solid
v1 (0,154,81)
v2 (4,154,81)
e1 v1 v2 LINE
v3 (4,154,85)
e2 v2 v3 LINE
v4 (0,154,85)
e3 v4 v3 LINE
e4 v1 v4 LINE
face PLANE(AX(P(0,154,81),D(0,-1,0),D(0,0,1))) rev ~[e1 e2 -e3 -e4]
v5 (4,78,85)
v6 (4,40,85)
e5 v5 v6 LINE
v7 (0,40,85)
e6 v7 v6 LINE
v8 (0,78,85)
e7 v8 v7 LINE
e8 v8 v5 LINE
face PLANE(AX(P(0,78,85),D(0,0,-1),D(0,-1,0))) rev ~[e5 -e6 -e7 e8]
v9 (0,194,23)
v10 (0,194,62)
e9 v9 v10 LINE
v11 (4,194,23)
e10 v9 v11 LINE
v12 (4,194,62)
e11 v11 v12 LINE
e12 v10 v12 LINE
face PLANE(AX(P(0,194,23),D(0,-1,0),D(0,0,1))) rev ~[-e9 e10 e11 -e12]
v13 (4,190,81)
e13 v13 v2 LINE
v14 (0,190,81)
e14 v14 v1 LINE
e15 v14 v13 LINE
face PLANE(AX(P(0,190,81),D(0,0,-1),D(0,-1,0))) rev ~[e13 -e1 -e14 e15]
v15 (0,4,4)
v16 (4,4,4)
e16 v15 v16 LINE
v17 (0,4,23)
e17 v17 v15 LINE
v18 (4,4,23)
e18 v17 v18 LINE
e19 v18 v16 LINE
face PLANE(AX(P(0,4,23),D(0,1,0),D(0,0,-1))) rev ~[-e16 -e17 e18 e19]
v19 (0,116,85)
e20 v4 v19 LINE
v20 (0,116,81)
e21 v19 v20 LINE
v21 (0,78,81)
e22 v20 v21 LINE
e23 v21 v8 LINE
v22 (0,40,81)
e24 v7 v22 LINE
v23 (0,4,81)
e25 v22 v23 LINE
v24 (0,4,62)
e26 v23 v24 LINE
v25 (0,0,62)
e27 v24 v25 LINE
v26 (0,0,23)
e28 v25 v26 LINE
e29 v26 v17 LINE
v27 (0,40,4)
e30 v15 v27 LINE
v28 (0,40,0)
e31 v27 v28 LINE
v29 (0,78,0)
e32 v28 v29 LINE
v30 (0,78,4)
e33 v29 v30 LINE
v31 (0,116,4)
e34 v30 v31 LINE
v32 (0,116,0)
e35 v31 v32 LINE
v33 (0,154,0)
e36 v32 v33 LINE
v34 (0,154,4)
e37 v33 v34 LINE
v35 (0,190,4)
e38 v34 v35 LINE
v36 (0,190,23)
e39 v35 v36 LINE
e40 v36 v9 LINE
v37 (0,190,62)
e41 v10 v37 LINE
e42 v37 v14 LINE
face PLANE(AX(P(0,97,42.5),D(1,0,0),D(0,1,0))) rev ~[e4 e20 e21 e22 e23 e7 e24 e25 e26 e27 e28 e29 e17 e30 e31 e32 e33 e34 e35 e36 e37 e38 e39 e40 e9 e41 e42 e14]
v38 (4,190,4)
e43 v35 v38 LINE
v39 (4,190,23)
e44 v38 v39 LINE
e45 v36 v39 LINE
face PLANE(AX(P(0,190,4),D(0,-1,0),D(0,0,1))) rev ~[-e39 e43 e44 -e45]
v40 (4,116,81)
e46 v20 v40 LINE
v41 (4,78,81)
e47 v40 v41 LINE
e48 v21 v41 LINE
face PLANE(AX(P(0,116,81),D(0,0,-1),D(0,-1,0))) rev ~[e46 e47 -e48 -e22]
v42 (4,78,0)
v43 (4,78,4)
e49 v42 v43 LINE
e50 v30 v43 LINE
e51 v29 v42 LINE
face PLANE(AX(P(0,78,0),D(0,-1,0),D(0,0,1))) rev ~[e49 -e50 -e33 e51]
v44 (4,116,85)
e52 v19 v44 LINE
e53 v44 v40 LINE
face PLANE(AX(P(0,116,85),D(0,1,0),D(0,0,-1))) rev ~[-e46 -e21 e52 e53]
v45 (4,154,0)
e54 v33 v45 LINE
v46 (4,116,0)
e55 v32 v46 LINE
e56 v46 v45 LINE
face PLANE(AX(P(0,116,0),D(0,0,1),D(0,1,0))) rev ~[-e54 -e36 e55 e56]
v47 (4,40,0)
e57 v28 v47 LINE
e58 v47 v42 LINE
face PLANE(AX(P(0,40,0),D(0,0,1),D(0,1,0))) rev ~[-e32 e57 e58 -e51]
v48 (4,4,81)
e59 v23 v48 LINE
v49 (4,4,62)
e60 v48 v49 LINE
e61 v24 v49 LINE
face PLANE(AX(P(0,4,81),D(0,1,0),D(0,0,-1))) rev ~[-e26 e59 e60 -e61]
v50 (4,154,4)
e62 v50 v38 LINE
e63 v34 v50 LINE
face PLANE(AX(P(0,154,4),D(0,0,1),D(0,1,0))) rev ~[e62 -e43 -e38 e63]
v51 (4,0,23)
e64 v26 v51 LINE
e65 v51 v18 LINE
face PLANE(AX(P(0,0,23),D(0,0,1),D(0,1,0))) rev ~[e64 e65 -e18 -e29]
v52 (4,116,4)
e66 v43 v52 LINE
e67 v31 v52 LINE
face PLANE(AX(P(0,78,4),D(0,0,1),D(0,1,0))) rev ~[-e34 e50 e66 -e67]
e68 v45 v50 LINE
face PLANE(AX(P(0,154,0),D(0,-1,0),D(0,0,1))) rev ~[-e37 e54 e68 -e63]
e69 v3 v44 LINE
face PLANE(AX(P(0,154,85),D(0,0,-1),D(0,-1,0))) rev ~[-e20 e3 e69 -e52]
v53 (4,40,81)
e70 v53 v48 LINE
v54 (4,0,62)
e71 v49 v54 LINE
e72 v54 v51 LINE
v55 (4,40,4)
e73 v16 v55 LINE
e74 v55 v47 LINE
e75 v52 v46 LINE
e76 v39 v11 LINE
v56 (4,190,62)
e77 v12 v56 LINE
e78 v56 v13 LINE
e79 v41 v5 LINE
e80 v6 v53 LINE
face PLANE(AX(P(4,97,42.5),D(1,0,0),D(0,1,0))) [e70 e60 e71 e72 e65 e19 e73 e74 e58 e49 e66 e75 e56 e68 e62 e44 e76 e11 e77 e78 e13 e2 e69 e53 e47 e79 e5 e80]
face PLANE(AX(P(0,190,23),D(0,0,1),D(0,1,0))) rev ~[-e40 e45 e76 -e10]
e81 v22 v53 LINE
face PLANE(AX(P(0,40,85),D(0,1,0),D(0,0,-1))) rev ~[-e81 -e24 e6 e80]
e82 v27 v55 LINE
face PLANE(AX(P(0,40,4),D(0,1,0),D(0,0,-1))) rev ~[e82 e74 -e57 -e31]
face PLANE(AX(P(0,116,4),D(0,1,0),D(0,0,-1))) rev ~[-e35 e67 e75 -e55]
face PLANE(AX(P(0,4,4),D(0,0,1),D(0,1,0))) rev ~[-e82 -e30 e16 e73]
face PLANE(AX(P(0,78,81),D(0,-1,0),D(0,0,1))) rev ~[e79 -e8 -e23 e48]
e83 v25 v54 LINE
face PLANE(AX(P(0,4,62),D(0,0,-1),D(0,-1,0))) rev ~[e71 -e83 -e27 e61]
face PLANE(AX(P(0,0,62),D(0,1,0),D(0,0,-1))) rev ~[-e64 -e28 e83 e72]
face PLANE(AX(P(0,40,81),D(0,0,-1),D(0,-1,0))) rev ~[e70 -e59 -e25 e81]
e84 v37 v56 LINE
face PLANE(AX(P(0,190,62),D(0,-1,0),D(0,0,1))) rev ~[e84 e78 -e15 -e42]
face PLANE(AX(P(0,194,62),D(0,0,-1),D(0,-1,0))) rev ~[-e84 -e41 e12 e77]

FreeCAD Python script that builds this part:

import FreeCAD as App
import Part
import Sketcher

V = App.Vector
Q = App.Units.Quantity

doc = App.newDocument("Part")
body = doc.addObject("PartDesign::Body", "Body")

sketch1 = doc.addObject("Sketcher::SketchObject", "Sketch")
body.addObject(sketch1)
sketch1.AttachmentSupport = (doc.YZ_Plane, [""])
sketch1.MapMode = "FlatFace"
sketch1.addGeometry([
    Part.LineSegment(V(40, 4, 0), V(40, 0, 0)),
    Part.LineSegment(V(40, 0, 0), V(78, 0, 0)),
    Part.LineSegment(V(78, 0, 0), V(78, 4, 0)),
    Part.LineSegment(V(78, 4, 0), V(116, 4, 0)),
    Part.LineSegment(V(116, 4, 0), V(116, 0, 0)),
    Part.LineSegment(V(116, 0, 0), V(154, 0, 0)),
    Part.LineSegment(V(154, 0, 0), V(154, 4, 0)),
    Part.LineSegment(V(154, 4, 0), V(190, 4, 0)),
    Part.LineSegment(V(190, 4, 0), V(190, 23, 0)),
    Part.LineSegment(V(190, 23, 0), V(194, 23, 0)),
    Part.LineSegment(V(194, 23, 0), V(194, 62, 0)),
    Part.LineSegment(V(194, 62, 0), V(190, 62, 0)),
    Part.LineSegment(V(190, 62, 0), V(190, 81, 0)),
    Part.LineSegment(V(190, 81, 0), V(154, 81, 0)),
    Part.LineSegment(V(154, 81, 0), V(154, 85, 0)),
    Part.LineSegment(V(154, 85, 0), V(116, 85, 0)),
    Part.LineSegment(V(116, 85, 0), V(116, 81, 0)),
    Part.LineSegment(V(116, 81, 0), V(78, 81, 0)),
    Part.LineSegment(V(78, 81, 0), V(78, 85, 0)),
    Part.LineSegment(V(78, 85, 0), V(40, 85, 0)),
    Part.LineSegment(V(40, 85, 0), V(40, 81, 0)),
    Part.LineSegment(V(40, 81, 0), V(4, 81, 0)),
    Part.LineSegment(V(4, 81, 0), V(4, 62, 0)),
    Part.LineSegment(V(4, 62, 0), V(0, 62, 0)),
    Part.LineSegment(V(0, 62, 0), V(0, 23, 0)),
    Part.LineSegment(V(0, 23, 0), V(4, 23, 0)),
    Part.LineSegment(V(4, 23, 0), V(4, 4, 0)),
    Part.LineSegment(V(4, 4, 0), V(40, 4, 0)),
], False)
sketch1.addConstraint([
    Sketcher.Constraint("Coincident", 0, 2, 1, 1),
    Sketcher.Constraint("Coincident", 1, 2, 2, 1),
    Sketcher.Constraint("Coincident", 2, 2, 3, 1),
    Sketcher.Constraint("Coincident", 3, 2, 4, 1),
    Sketcher.Constraint("Coincident", 4, 2, 5, 1),
    Sketcher.Constraint("Coincident", 5, 2, 6, 1),
    Sketcher.Constraint("Coincident", 6, 2, 7, 1),
    Sketcher.Constraint("Coincident", 7, 2, 8, 1),
    Sketcher.Constraint("Coincident", 8, 2, 9, 1),
    Sketcher.Constraint("Coincident", 9, 2, 10, 1),
    Sketcher.Constraint("Coincident", 10, 2, 11, 1),
    Sketcher.Constraint("Coincident", 11, 2, 12, 1),
    Sketcher.Constraint("Coincident", 12, 2, 13, 1),
    Sketcher.Constraint("Coincident", 13, 2, 14, 1),
    Sketcher.Constraint("Coincident", 14, 2, 15, 1),
    Sketcher.Constraint("Coincident", 15, 2, 16, 1),
    Sketcher.Constraint("Coincident", 16, 2, 17, 1),
    Sketcher.Constraint("Coincident", 17, 2, 18, 1),
    Sketcher.Constraint("Coincident", 18, 2, 19, 1),
    Sketcher.Constraint("Coincident", 19, 2, 20, 1),
    Sketcher.Constraint("Coincident", 20, 2, 21, 1),
    Sketcher.Constraint("Coincident", 21, 2, 22, 1),
    Sketcher.Constraint("Coincident", 22, 2, 23, 1),
    Sketcher.Constraint("Coincident", 23, 2, 24, 1),
    Sketcher.Constraint("Coincident", 24, 2, 25, 1),
    Sketcher.Constraint("Coincident", 25, 2, 26, 1),
    Sketcher.Constraint("Coincident", 26, 2, 27, 1),
    Sketcher.Constraint("Coincident", 27, 2, 0, 1),
    Sketcher.Constraint("Vertical", 0),
    Sketcher.Constraint("Horizontal", 1),
    Sketcher.Constraint("Vertical", 2),
    Sketcher.Constraint("Horizontal", 3),
    Sketcher.Constraint("Vertical", 4),
    Sketcher.Constraint("Horizontal", 5),
    Sketcher.Constraint("Vertical", 6),
    Sketcher.Constraint("Horizontal", 7),
    Sketcher.Constraint("Vertical", 8),
    Sketcher.Constraint("Horizontal", 9),
    Sketcher.Constraint("Vertical", 10),
    Sketcher.Constraint("Horizontal", 11),
    Sketcher.Constraint("Vertical", 12),
    Sketcher.Constraint("Horizontal", 13),
    Sketcher.Constraint("Vertical", 14),
    Sketcher.Constraint("Horizontal", 15),
    Sketcher.Constraint("Vertical", 16),
    Sketcher.Constraint("Horizontal", 17),
    Sketcher.Constraint("Vertical", 18),
    Sketcher.Constraint("Horizontal", 19),
    Sketcher.Constraint("Vertical", 20),
    Sketcher.Constraint("Horizontal", 21),
    Sketcher.Constraint("Vertical", 22),
    Sketcher.Constraint("Horizontal", 23),
    Sketcher.Constraint("Vertical", 24),
    Sketcher.Constraint("Horizontal", 25),
    Sketcher.Constraint("Vertical", 26),
    Sketcher.Constraint("Horizontal", 27),
    Sketcher.Constraint("PointOnObject", 0, 2, -1),
    Sketcher.Constraint("PointOnObject", 4, 2, -1),
    Sketcher.Constraint("PointOnObject", 23, 2, -2),
    Sketcher.Constraint("Horizontal", 3, 2, 6, 2),
    Sketcher.Constraint("Horizontal", 13, 2, 16, 2),
    Sketcher.Constraint("Horizontal", 15, 2, 18, 2),
    Sketcher.Constraint("Horizontal", 17, 2, 20, 2),
    Sketcher.Constraint("Horizontal", 11, 2, 22, 2),
    Sketcher.Constraint("Horizontal", 9, 2, 24, 2),
    Sketcher.Constraint("Horizontal", 7, 2, 26, 2),
    Sketcher.Constraint("Vertical", 8, 2, 11, 2),
    Sketcher.Constraint("Vertical", 6, 2, 13, 2),
    Sketcher.Constraint("Vertical", 4, 2, 15, 2),
    Sketcher.Constraint("Vertical", 2, 2, 17, 2),
    Sketcher.Constraint("Vertical", 0, 2, 19, 2),
    Sketcher.Constraint("Vertical", 22, 2, 25, 2),
    Sketcher.Constraint("Equal", 1, 3),
    Sketcher.Constraint("Equal", 3, 5),
    Sketcher.Constraint("Equal", 13, 21),
    Sketcher.Constraint("Equal", 11, 23),
    Sketcher.Constraint("Equal", 25, 0),
    Sketcher.Constraint("Equal", 8, 12),
    Sketcher.Constraint("Equal", 6, 14),
    Sketcher.Constraint("DistanceX", 1, 1, 1, 2, Q("38 mm")),
    Sketcher.Constraint("DistanceX", 7, 1, 7, 2, Q("36 mm")),
    Sketcher.Constraint("DistanceX", 9, 1, 9, 2, Q("4 mm")),
    Sketcher.Constraint("DistanceY", 8, 1, 8, 2, Q("19 mm")),
    Sketcher.Constraint("DistanceY", 10, 1, 10, 2, Q("39 mm")),
])
pad1 = doc.addObject("PartDesign::Pad", "Pad")
body.addObject(pad1)
pad1.Profile = sketch1
pad1.Length = 4

doc.recompute()
